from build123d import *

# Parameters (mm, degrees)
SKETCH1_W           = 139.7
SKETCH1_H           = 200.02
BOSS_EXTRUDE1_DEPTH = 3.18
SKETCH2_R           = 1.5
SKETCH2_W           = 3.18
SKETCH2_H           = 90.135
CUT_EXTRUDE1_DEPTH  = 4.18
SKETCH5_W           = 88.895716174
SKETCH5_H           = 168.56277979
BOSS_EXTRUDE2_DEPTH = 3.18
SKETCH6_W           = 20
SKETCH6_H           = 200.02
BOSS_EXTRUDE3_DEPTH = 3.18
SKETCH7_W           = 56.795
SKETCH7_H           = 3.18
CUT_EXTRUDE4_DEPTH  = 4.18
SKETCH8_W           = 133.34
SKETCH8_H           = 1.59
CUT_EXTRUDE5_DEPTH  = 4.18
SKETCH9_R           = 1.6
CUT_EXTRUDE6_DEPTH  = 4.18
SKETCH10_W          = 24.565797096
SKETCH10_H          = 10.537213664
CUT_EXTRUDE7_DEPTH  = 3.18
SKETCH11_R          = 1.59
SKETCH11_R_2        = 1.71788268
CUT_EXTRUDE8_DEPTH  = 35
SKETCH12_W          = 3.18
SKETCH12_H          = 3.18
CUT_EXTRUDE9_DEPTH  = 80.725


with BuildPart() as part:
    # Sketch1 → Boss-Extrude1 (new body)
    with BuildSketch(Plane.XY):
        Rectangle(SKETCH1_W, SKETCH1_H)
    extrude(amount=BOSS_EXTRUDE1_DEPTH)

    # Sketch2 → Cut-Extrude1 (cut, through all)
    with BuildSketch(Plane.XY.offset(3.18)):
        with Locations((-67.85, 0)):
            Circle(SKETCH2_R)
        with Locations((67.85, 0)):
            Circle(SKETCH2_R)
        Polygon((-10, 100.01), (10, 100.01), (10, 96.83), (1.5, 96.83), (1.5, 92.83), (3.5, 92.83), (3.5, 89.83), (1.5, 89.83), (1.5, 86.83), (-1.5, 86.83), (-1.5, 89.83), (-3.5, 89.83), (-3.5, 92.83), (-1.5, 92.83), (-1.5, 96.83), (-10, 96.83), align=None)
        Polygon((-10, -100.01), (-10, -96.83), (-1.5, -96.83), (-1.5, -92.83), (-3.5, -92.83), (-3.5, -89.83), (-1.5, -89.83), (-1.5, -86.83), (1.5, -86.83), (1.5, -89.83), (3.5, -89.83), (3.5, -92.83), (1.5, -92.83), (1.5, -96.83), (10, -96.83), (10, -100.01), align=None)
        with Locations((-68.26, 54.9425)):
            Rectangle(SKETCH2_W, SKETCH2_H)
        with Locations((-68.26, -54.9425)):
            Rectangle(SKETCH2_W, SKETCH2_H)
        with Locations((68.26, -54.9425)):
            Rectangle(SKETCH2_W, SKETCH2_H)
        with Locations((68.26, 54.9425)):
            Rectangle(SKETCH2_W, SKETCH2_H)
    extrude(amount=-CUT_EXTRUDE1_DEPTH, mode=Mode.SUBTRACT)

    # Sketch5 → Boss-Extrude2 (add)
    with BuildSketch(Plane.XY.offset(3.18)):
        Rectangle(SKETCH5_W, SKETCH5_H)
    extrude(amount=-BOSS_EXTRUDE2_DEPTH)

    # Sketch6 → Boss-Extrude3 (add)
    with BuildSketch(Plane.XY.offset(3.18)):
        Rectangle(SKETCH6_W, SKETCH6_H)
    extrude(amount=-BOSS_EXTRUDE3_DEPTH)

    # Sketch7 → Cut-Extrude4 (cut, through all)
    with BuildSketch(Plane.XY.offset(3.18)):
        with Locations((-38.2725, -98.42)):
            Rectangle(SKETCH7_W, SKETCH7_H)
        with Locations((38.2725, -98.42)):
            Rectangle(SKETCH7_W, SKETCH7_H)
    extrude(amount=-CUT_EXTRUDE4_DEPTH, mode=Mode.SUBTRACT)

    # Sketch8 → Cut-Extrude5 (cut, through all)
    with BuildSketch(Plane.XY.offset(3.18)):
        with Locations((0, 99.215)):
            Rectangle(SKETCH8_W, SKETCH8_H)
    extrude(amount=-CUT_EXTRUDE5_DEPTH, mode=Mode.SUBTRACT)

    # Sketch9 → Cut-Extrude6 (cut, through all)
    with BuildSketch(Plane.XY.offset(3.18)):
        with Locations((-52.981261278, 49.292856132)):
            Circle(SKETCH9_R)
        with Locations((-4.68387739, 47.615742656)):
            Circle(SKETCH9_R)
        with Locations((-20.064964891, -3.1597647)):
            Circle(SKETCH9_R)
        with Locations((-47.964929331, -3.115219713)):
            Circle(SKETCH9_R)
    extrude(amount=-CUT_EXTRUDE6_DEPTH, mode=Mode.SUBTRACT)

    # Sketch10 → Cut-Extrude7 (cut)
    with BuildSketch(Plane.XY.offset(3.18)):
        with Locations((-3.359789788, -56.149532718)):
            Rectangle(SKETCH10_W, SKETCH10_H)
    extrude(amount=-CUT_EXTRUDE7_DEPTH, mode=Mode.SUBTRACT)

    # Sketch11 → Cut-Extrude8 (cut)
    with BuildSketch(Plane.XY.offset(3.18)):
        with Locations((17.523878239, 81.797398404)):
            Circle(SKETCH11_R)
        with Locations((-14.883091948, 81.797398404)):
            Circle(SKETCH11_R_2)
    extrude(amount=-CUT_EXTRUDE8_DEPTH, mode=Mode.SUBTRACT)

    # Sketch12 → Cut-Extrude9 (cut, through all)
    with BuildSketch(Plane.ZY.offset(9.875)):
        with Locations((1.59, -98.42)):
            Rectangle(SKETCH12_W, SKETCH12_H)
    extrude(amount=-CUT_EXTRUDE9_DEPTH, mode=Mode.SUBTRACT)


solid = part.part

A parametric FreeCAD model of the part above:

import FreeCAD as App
import Part
import Sketcher

doc = App.newDocument("Part")
body = doc.addObject("PartDesign::Body", "Body")

# Sketch on XY plane
sketch1 = body.newObject("Sketcher::SketchObject", "Sketch")
sketch1.AttachmentSupport = (doc.getObject("XY_Plane"), [""])
sketch1.MapMode = "FlatFace"
sketch1.addGeometry(Part.LineSegment(App.Vector(-70, 100, 0), App.Vector(-70, -100, 0)), False)
sketch1.addGeometry(Part.LineSegment(App.Vector(-70, -100, 0), App.Vector(70, -100, 0)), False)
sketch1.addGeometry(Part.LineSegment(App.Vector(70, -100, 0), App.Vector(70, 100, 0)), False)
sketch1.addGeometry(Part.LineSegment(App.Vector(70, 100, 0), App.Vector(-70, 100, 0)), False)
sketch1.addConstraint(Sketcher.Constraint("Coincident", 0, 2, 1, 1))
sketch1.addConstraint(Sketcher.Constraint("Coincident", 1, 2, 2, 1))
sketch1.addConstraint(Sketcher.Constraint("Coincident", 2, 2, 3, 1))
sketch1.addConstraint(Sketcher.Constraint("Coincident", 3, 2, 0, 1))
sketch1.addConstraint(Sketcher.Constraint("Vertical", 0))
sketch1.addConstraint(Sketcher.Constraint("Horizontal", 1))
sketch1.addConstraint(Sketcher.Constraint("Vertical", 2))
sketch1.addConstraint(Sketcher.Constraint("Horizontal", 3))
sketch1.addConstraint(Sketcher.Constraint("Symmetric", 0, 2, 2, 2, -1, 1))
sketch1.addConstraint(Sketcher.Constraint("DistanceX", 1, 1, 1, 2, 139.7))
sketch1.addConstraint(Sketcher.Constraint("DistanceY", 0, 2, 0, 1, 200.02))
pad1 = body.newObject("PartDesign::Pad", "Pad")
pad1.Profile = sketch1
pad1.Length = 3.18

# Sketch on XY plane
sketch2 = body.newObject("Sketcher::SketchObject", "Sketch001")
sketch2.AttachmentSupport = (doc.getObject("XY_Plane"), [""])
sketch2.MapMode = "FlatFace"
sketch2.AttachmentOffset = App.Placement(App.Vector(0, 0, 3.18), App.Rotation())
sketch2.addGeometry(Part.Circle(App.Vector(-67.8, 0, 0), App.Vector(0, 0, 1), 1.5), False)
sketch2.addGeometry(Part.Circle(App.Vector(67.8, 0, 0), App.Vector(0, 0, 1), 1.5), False)
sketch2.addGeometry(Part.LineSegment(App.Vector(10, 100, 0), App.Vector(-10, 100, 0)), False)
sketch2.addGeometry(Part.LineSegment(App.Vector(-10, 100, 0), App.Vector(-10, 96.8, 0)), False)
sketch2.addGeometry(Part.LineSegment(App.Vector(-10, 96.8, 0), App.Vector(-1.5, 96.8, 0)), False)
sketch2.addGeometry(Part.LineSegment(App.Vector(-1.5, 96.8, 0), App.Vector(-1.5, 92.8, 0)), False)
sketch2.addGeometry(Part.LineSegment(App.Vector(-1.5, 92.8, 0), App.Vector(-3.5, 92.8, 0)), False)
sketch2.addGeometry(Part.LineSegment(App.Vector(-3.5, 92.8, 0), App.Vector(-3.5, 89.8, 0)), False)
sketch2.addGeometry(Part.LineSegment(App.Vector(-3.5, 89.8, 0), App.Vector(-1.5, 89.8, 0)), False)
sketch2.addGeometry(Part.LineSegment(App.Vector(-1.5, 89.8, 0), App.Vector(-1.5, 86.8, 0)), False)
sketch2.addGeometry(Part.LineSegment(App.Vector(-1.5, 86.8, 0), App.Vector(1.5, 86.8, 0)), False)
sketch2.addGeometry(Part.LineSegment(App.Vector(1.5, 86.8, 0), App.Vector(1.5, 89.8, 0)), False)
sketch2.addGeometry(Part.LineSegment(App.Vector(1.5, 89.8, 0), App.Vector(3.5, 89.8, 0)), False)
sketch2.addGeometry(Part.LineSegment(App.Vector(3.5, 89.8, 0), App.Vector(3.5, 92.8, 0)), False)
sketch2.addGeometry(Part.LineSegment(App.Vector(3.5, 92.8, 0), App.Vector(1.5, 92.8, 0)), False)
sketch2.addGeometry(Part.LineSegment(App.Vector(1.5, 92.8, 0), App.Vector(1.5, 96.8, 0)), False)
sketch2.addGeometry(Part.LineSegment(App.Vector(1.5, 96.8, 0), App.Vector(10, 96.8, 0)), False)
sketch2.addGeometry(Part.LineSegment(App.Vector(10, 96.8, 0), App.Vector(10, 100, 0)), False)
sketch2.addGeometry(Part.LineSegment(App.Vector(-10, -96.8, 0), App.Vector(-10, -100, 0)), False)
sketch2.addGeometry(Part.LineSegment(App.Vector(-10, -100, 0), App.Vector(10, -100, 0)), False)
sketch2.addGeometry(Part.LineSegment(App.Vector(10, -100, 0), App.Vector(10, -96.8, 0)), False)
sketch2.addGeometry(Part.LineSegment(App.Vector(10, -96.8, 0), App.Vector(1.5, -96.8, 0)), False)
sketch2.addGeometry(Part.LineSegment(App.Vector(1.5, -96.8, 0), App.Vector(1.5, -92.8, 0)), False)
sketch2.addGeometry(Part.LineSegment(App.Vector(1.5, -92.8, 0), App.Vector(3.5, -92.8, 0)), False)
sketch2.addGeometry(Part.LineSegment(App.Vector(3.5, -92.8, 0), App.Vector(3.5, -89.8, 0)), False)
sketch2.addGeometry(Part.LineSegment(App.Vector(3.5, -89.8, 0), App.Vector(1.5, -89.8, 0)), False)
sketch2.addGeometry(Part.LineSegment(App.Vector(1.5, -89.8, 0), App.Vector(1.5, -86.8, 0)), False)
sketch2.addGeometry(Part.LineSegment(App.Vector(1.5, -86.8, 0), App.Vector(-1.5, -86.8, 0)), False)
sketch2.addGeometry(Part.LineSegment(App.Vector(-1.5, -86.8, 0), App.Vector(-1.5, -89.8, 0)), False)
sketch2.addGeometry(Part.LineSegment(App.Vector(-1.5, -89.8, 0), App.Vector(-3.5, -89.8, 0)), False)
sketch2.addGeometry(Part.LineSegment(App.Vector(-3.5, -89.8, 0), App.Vector(-3.5, -92.8, 0)), False)
sketch2.addGeometry(Part.LineSegment(App.Vector(-3.5, -92.8, 0), App.Vector(-1.5, -92.8, 0)), False)
sketch2.addGeometry(Part.LineSegment(App.Vector(-1.5, -92.8, 0), App.Vector(-1.5, -96.8, 0)), False)
sketch2.addGeometry(Part.LineSegment(App.Vector(-1.5, -96.8, 0), App.Vector(-10, -96.8, 0)), False)
sketch2.addGeometry(Part.LineSegment(App.Vector(-69.8, 100, 0), App.Vector(-69.8, 9.9, 0)), False)
sketch2.addGeometry(Part.LineSegment(App.Vector(-69.8, 9.9, 0), App.Vector(-66.7, 9.9, 0)), False)
sketch2.addGeometry(Part.LineSegment(App.Vector(-66.7, 9.9, 0), App.Vector(-66.7, 100, 0)), False)
sketch2.addGeometry(Part.LineSegment(App.Vector(-66.7, 100, 0), App.Vector(-69.8, 100, 0)), False)
sketch2.addGeometry(Part.LineSegment(App.Vector(-69.8, -9.9, 0), App.Vector(-69.8, -100, 0)), False)
sketch2.addGeometry(Part.LineSegment(App.Vector(-69.8, -100, 0), App.Vector(-66.7, -100, 0)), False)
sketch2.addGeometry(Part.LineSegment(App.Vector(-66.7, -100, 0), App.Vector(-66.7, -9.9, 0)), False)
sketch2.addGeometry(Part.LineSegment(App.Vector(-66.7, -9.9, 0), App.Vector(-69.8, -9.9, 0)), False)
sketch2.addGeometry(Part.LineSegment(App.Vector(66.7, -9.9, 0), App.Vector(66.7, -100, 0)), False)
sketch2.addGeometry(Part.LineSegment(App.Vector(66.7, -100, 0), App.Vector(69.8, -100, 0)), False)
sketch2.addGeometry(Part.LineSegment(App.Vector(69.8, -100, 0), App.Vector(69.8, -9.9, 0)), False)
sketch2.addGeometry(Part.LineSegment(App.Vector(69.8, -9.9, 0), App.Vector(66.7, -9.9, 0)), False)
sketch2.addGeometry(Part.LineSegment(App.Vector(66.7, 100, 0), App.Vector(66.7, 9.9, 0)), False)
sketch2.addGeometry(Part.LineSegment(App.Vector(66.7, 9.9, 0), App.Vector(69.8, 9.9, 0)), False)
sketch2.addGeometry(Part.LineSegment(App.Vector(69.8, 9.9, 0), App.Vector(69.8, 100, 0)), False)
sketch2.addGeometry(Part.LineSegment(App.Vector(69.8, 100, 0), App.Vector(66.7, 100, 0)), False)
sketch2.addConstraint(Sketcher.Constraint("Coincident", 2, 2, 3, 1))
sketch2.addConstraint(Sketcher.Constraint("Coincident", 3, 2, 4, 1))
sketch2.addConstraint(Sketcher.Constraint("Coincident", 4, 2, 5, 1))
sketch2.addConstraint(Sketcher.Constraint("Coincident", 5, 2, 6, 1))
sketch2.addConstraint(Sketcher.Constraint("Coincident", 6, 2, 7, 1))
sketch2.addConstraint(Sketcher.Constraint("Coincident", 7, 2, 8, 1))
sketch2.addConstraint(Sketcher.Constraint("Coincident", 8, 2, 9, 1))
sketch2.addConstraint(Sketcher.Constraint("Coincident", 9, 2, 10, 1))
sketch2.addConstraint(Sketcher.Constraint("Coincident", 10, 2, 11, 1))
sketch2.addConstraint(Sketcher.Constraint("Coincident", 11, 2, 12, 1))
sketch2.addConstraint(Sketcher.Constraint("Coincident", 12, 2, 13, 1))
sketch2.addConstraint(Sketcher.Constraint("Coincident", 13, 2, 14, 1))
sketch2.addConstraint(Sketcher.Constraint("Coincident", 14, 2, 15, 1))
sketch2.addConstraint(Sketcher.Constraint("Coincident", 15, 2, 16, 1))
sketch2.addConstraint(Sketcher.Constraint("Coincident", 16, 2, 17, 1))
sketch2.addConstraint(Sketcher.Constraint("Coincident", 17, 2, 2, 1))
sketch2.addConstraint(Sketcher.Constraint("Coincident", 18, 2, 19, 1))
sketch2.addConstraint(Sketcher.Constraint("Coincident", 19, 2, 20, 1))
sketch2.addConstraint(Sketcher.Constraint("Coincident", 20, 2, 21, 1))
sketch2.addConstraint(Sketcher.Constraint("Coincident", 21, 2, 22, 1))
sketch2.addConstraint(Sketcher.Constraint("Coincident", 22, 2, 23, 1))
sketch2.addConstraint(Sketcher.Constraint("Coincident", 23, 2, 24, 1))
sketch2.addConstraint(Sketcher.Constraint("Coincident", 24, 2, 25, 1))
sketch2.addConstraint(Sketcher.Constraint("Coincident", 25, 2, 26, 1))
sketch2.addConstraint(Sketcher.Constraint("Coincident", 26, 2, 27, 1))
sketch2.addConstraint(Sketcher.Constraint("Coincident", 27, 2, 28, 1))
sketch2.addConstraint(Sketcher.Constraint("Coincident", 28, 2, 29, 1))
sketch2.addConstraint(Sketcher.Constraint("Coincident", 29, 2, 30, 1))
sketch2.addConstraint(Sketcher.Constraint("Coincident", 30, 2, 31, 1))
sketch2.addConstraint(Sketcher.Constraint("Coincident", 31, 2, 32, 1))
sketch2.addConstraint(Sketcher.Constraint("Coincident", 32, 2, 33, 1))
sketch2.addConstraint(Sketcher.Constraint("Coincident", 33, 2, 18, 1))
sketch2.addConstraint(Sketcher.Constraint("Coincident", 34, 2, 35, 1))
sketch2.addConstraint(Sketcher.Constraint("Coincident", 35, 2, 36, 1))
sketch2.addConstraint(Sketcher.Constraint("Coincident", 36, 2, 37, 1))
sketch2.addConstraint(Sketcher.Constraint("Coincident", 37, 2, 34, 1))
sketch2.addConstraint(Sketcher.Constraint("Coincident", 38, 2, 39, 1))
sketch2.addConstraint(Sketcher.Constraint("Coincident", 39, 2, 40, 1))
sketch2.addConstraint(Sketcher.Constraint("Coincident", 40, 2, 41, 1))
sketch2.addConstraint(Sketcher.Constraint("Coincident", 41, 2, 38, 1))
sketch2.addConstraint(Sketcher.Constraint("Coincident", 42, 2, 43, 1))
sketch2.addConstraint(Sketcher.Constraint("Coincident", 43, 2, 44, 1))
sketch2.addConstraint(Sketcher.Constraint("Coincident", 44, 2, 45, 1))
sketch2.addConstraint(Sketcher.Constraint("Coincident", 45, 2, 42, 1))
sketch2.addConstraint(Sketcher.Constraint("Coincident", 46, 2, 47, 1))
sketch2.addConstraint(Sketcher.Constraint("Coincident", 47, 2, 48, 1))
sketch2.addConstraint(Sketcher.Constraint("Coincident", 48, 2, 49, 1))
sketch2.addConstraint(Sketcher.Constraint("Coincident", 49, 2, 46, 1))
sketch2.addConstraint(Sketcher.Constraint("Horizontal", 2))
sketch2.addConstraint(Sketcher.Constraint("Vertical", 3))
sketch2.addConstraint(Sketcher.Constraint("Horizontal", 4))
sketch2.addConstraint(Sketcher.Constraint("Vertical", 5))
sketch2.addConstraint(Sketcher.Constraint("Horizontal", 6))
sketch2.addConstraint(Sketcher.Constraint("Vertical", 7))
sketch2.addConstraint(Sketcher.Constraint("Horizontal", 8))
sketch2.addConstraint(Sketcher.Constraint("Vertical", 9))
sketch2.addConstraint(Sketcher.Constraint("Horizontal", 10))
sketch2.addConstraint(Sketcher.Constraint("Vertical", 11))
sketch2.addConstraint(Sketcher.Constraint("Horizontal", 12))
sketch2.addConstraint(Sketcher.Constraint("Vertical", 13))
sketch2.addConstraint(Sketcher.Constraint("Horizontal", 14))
sketch2.addConstraint(Sketcher.Constraint("Vertical", 15))
sketch2.addConstraint(Sketcher.Constraint("Horizontal", 16))
sketch2.addConstraint(Sketcher.Constraint("Vertical", 17))
sketch2.addConstraint(Sketcher.Constraint("Vertical", 18))
sketch2.addConstraint(Sketcher.Constraint("Horizontal", 19))
sketch2.addConstraint(Sketcher.Constraint("Vertical", 20))
sketch2.addConstraint(Sketcher.Constraint("Horizontal", 21))
sketch2.addConstraint(Sketcher.Constraint("Vertical", 22))
sketch2.addConstraint(Sketcher.Constraint("Horizontal", 23))
sketch2.addConstraint(Sketcher.Constraint("Vertical", 24))
sketch2.addConstraint(Sketcher.Constraint("Horizontal", 25))
sketch2.addConstraint(Sketcher.Constraint("Vertical", 26))
sketch2.addConstraint(Sketcher.Constraint("Horizontal", 27))
sketch2.addConstraint(Sketcher.Constraint("Vertical", 28))
sketch2.addConstraint(Sketcher.Constraint("Horizontal", 29))
sketch2.addConstraint(Sketcher.Constraint("Vertical", 30))
sketch2.addConstraint(Sketcher.Constraint("Horizontal", 31))
sketch2.addConstraint(Sketcher.Constraint("Vertical", 32))
sketch2.addConstraint(Sketcher.Constraint("Horizontal", 33))
sketch2.addConstraint(Sketcher.Constraint("Vertical", 34))
sketch2.addConstraint(Sketcher.Constraint("Horizontal", 35))
sketch2.addConstraint(Sketcher.Constraint("Vertical", 36))
sketch2.addConstraint(Sketcher.Constraint("Horizontal", 37))
sketch2.addConstraint(Sketcher.Constraint("Vertical", 38))
sketch2.addConstraint(Sketcher.Constraint("Horizontal", 39))
sketch2.addConstraint(Sketcher.Constraint("Vertical", 40))
sketch2.addConstraint(Sketcher.Constraint("Horizontal", 41))
sketch2.addConstraint(Sketcher.Constraint("Vertical", 42))
sketch2.addConstraint(Sketcher.Constraint("Horizontal", 43))
sketch2.addConstraint(Sketcher.Constraint("Vertical", 44))
sketch2.addConstraint(Sketcher.Constraint("Horizontal", 45))
sketch2.addConstraint(Sketcher.Constraint("Vertical", 46))
sketch2.addConstraint(Sketcher.Constraint("Horizontal", 47))
sketch2.addConstraint(Sketcher.Constraint("Vertical", 48))
sketch2.addConstraint(Sketcher.Constraint("Horizontal", 49))
sketch2.addConstraint(Sketcher.Constraint("Equal", 0, 1))
sketch2.addConstraint(Sketcher.Constraint("Symmetric", 0, 3, 1, 3, -1, 1))
sketch2.addConstraint(Sketcher.Constraint("Symmetric", 17, 2, 18, 2, -1, 1))
sketch2.addConstraint(Sketcher.Constraint("Symmetric", 3, 2, 20, 2, -1, 1))
sketch2.addConstraint(Sketcher.Constraint("Symmetric", 5, 2, 22, 2, -1, 1))
sketch2.addConstraint(Sketcher.Constraint("Symmetric", 7, 2, 24, 2, -1, 1))
sketch2.addConstraint(Sketcher.Constraint("Symmetric", 9, 2, 26, 2, -1, 1))
sketch2.addConstraint(Sketcher.Constraint("Symmetric", 11, 2, 28, 2, -1, 1))
sketch2.addConstraint(Sketcher.Constraint("Symmetric", 13, 2, 30, 2, -1, 1))
sketch2.addConstraint(Sketcher.Constraint("Symmetric", 15, 2, 32, 2, -1, 1))
sketch2.addConstraint(Sketcher.Constraint("Symmetric", 36, 2, 42, 2, -1, 1))
sketch2.addConstraint(Sketcher.Constraint("Symmetric", 34, 2, 44, 2, -1, 1))
sketch2.addConstraint(Sketcher.Constraint("Symmetric", 40, 2, 46, 2, -1, 1))
sketch2.addConstraint(Sketcher.Constraint("Symmetric", 38, 2, 48, 2, -1, 1))
sketch2.addConstraint(Sketcher.Constraint("Symmetric", 8, 2, 11, 2, -2))
sketch2.addConstraint(Sketcher.Constraint("Symmetric", 6, 2, 13, 2, -2))
sketch2.addConstraint(Sketcher.Constraint("Symmetric", 4, 2, 15, 2, -2))
sketch2.addConstraint(Sketcher.Constraint("Symmetric", 39, 2, 42, 2, -2))
sketch2.addConstraint(Sketcher.Constraint("Symmetric", 41, 2, 44, 2, -2))
sketch2.addConstraint(Sketcher.Constraint("PointOnObject", 0, 3, -1))
sketch2.addConstraint(Sketcher.Constraint("Horizontal", 17, 2, 36, 2))
sketch2.addConstraint(Sketcher.Constraint("Vertical", 5, 2, 8, 2))
sketch2.addConstraint(Sketcher.Constraint("Vertical", 3, 2, 18, 2))
sketch2.addConstraint(Sketcher.Constraint("Equal", 49, 3))
sketch2.addConstraint(Sketcher.Constraint("Equal", 27, 7))
sketch2.addConstraint(Sketcher.Constraint("Equal", 7, 9))
sketch2.addConstraint(Sketcher.Constraint("Diameter", 0, 3.0))
sketch2.addConstraint(Sketcher.Constraint("DistanceX", 2, 2, 2, 1, 20.0))
sketch2.addConstraint(Sketcher.Constraint("DistanceX", 6, 2, 6, 1, 2.0))
sketch2.addConstraint(Sketcher.Constraint("DistanceX", 10, 1, 10, 2, 3.0))
sketch2.addConstraint(Sketcher.Constraint("DistanceY", 5, 2, 5, 1, 4.0))
sketch2.addConstraint(Sketcher.Constraint("DistanceX", 34, 2, 0, 3, 2.0))
sketch2.addConstraint(Sketcher.Constraint("DistanceX", 35, 1, 35, 2, 3.18))
sketch2.addConstraint(Sketcher.Constraint("DistanceX", 0, 3, 1, 3, 135.7))
sketch2.addConstraint(Sketcher.Constraint("DistanceY", 34, 2, 34, 1, 90.135))
sketch2.addConstraint(Sketcher.Constraint("DistanceY", -1, 1, 2, 2, 100.01))
pocket1 = body.newObject("PartDesign::Pocket", "Pocket")
pocket1.Profile = sketch2
pocket1.Type = "ThroughAll"

# Sketch on XY plane
sketch3 = body.newObject("Sketcher::SketchObject", "Sketch002")
sketch3.AttachmentSupport = (doc.getObject("XY_Plane"), [""])
sketch3.MapMode = "FlatFace"
sketch3.AttachmentOffset = App.Placement(App.Vector(0, 0, 3.18), App.Rotation())
sketch3.addGeometry(Part.LineSegment(App.Vector(-44, 84, 0), App.Vector(-44, -84, 0)), False)
sketch3.addGeometry(Part.LineSegment(App.Vector(-44, -84, 0), App.Vector(44, -84, 0)), False)
sketch3.addGeometry(Part.LineSegment(App.Vector(44, -84, 0), App.Vector(44, 84, 0)), False)
sketch3.addGeometry(Part.LineSegment(App.Vector(44, 84, 0), App.Vector(-44, 84, 0)), False)
sketch3.addConstraint(Sketcher.Constraint("Coincident", 0, 2, 1, 1))
sketch3.addConstraint(Sketcher.Constraint("Coincident", 1, 2, 2, 1))
sketch3.addConstraint(Sketcher.Constraint("Coincident", 2, 2, 3, 1))
sketch3.addConstraint(Sketcher.Constraint("Coincident", 3, 2, 0, 1))
sketch3.addConstraint(Sketcher.Constraint("Vertical", 0))
sketch3.addConstraint(Sketcher.Constraint("Horizontal", 1))
sketch3.addConstraint(Sketcher.Constraint("Vertical", 2))
sketch3.addConstraint(Sketcher.Constraint("Horizontal", 3))
sketch3.addConstraint(Sketcher.Constraint("Symmetric", 0, 2, 2, 2, -1, 1))
sketch3.addConstraint(Sketcher.Constraint("DistanceY", 0, 2, 0, 1, 168.56278))
sketch3.addConstraint(Sketcher.Constraint("DistanceX", 1, 1, 1, 2, 88.895716))
pad2 = body.newObject("PartDesign::Pad", "Pad001")
pad2.Profile = sketch3
pad2.Length = 3.18
pad2.Reversed = True

# Sketch on XY plane
sketch4 = body.newObject("Sketcher::SketchObject", "Sketch003")
sketch4.AttachmentSupport = (doc.getObject("XY_Plane"), [""])
sketch4.MapMode = "FlatFace"
sketch4.AttachmentOffset = App.Placement(App.Vector(0, 0, 3.18), App.Rotation())
sketch4.addGeometry(Part.LineSegment(App.Vector(-10, 100, 0), App.Vector(-10, -100, 0)), False)
sketch4.addGeometry(Part.LineSegment(App.Vector(-10, -100, 0), App.Vector(10, -100, 0)), False)
sketch4.addGeometry(Part.LineSegment(App.Vector(10, -100, 0), App.Vector(10, 100, 0)), False)
sketch4.addGeometry(Part.LineSegment(App.Vector(10, 100, 0), App.Vector(-10, 100, 0)), False)
sketch4.addConstraint(Sketcher.Constraint("Coincident", 0, 2, 1, 1))
sketch4.addConstraint(Sketcher.Constraint("Coincident", 1, 2, 2, 1))
sketch4.addConstraint(Sketcher.Constraint("Coincident", 2, 2, 3, 1))
sketch4.addConstraint(Sketcher.Constraint("Coincident", 3, 2, 0, 1))
sketch4.addConstraint(Sketcher.Constraint("Vertical", 0))
sketch4.addConstraint(Sketcher.Constraint("Horizontal", 1))
sketch4.addConstraint(Sketcher.Constraint("Vertical", 2))
sketch4.addConstraint(Sketcher.Constraint("Horizontal", 3))
sketch4.addConstraint(Sketcher.Constraint("Symmetric", 0, 2, 2, 2, -1, 1))
sketch4.addConstraint(Sketcher.Constraint("DistanceX", 1, 1, 1, 2, 20.0))
sketch4.addConstraint(Sketcher.Constraint("DistanceY", 0, 2, 0, 1, 200.02))
pad3 = body.newObject("PartDesign::Pad", "Pad002")
pad3.Profile = sketch4
pad3.Length = 3.18
pad3.Reversed = True

# Sketch on XY plane
sketch5 = body.newObject("Sketcher::SketchObject", "Sketch004")
sketch5.AttachmentSupport = (doc.getObject("XY_Plane"), [""])
sketch5.MapMode = "FlatFace"
sketch5.AttachmentOffset = App.Placement(App.Vector(0, 0, 3.18), App.Rotation())
sketch5.addGeometry(Part.LineSegment(App.Vector(-66.7, -96.8, 0), App.Vector(-66.7, -100, 0)), False)
sketch5.addGeometry(Part.LineSegment(App.Vector(-66.7, -100, 0), App.Vector(-9.9, -100, 0)), False)
sketch5.addGeometry(Part.LineSegment(App.Vector(-9.9, -100, 0), App.Vector(-9.9, -96.8, 0)), False)
sketch5.addGeometry(Part.LineSegment(App.Vector(-9.9, -96.8, 0), App.Vector(-66.7, -96.8, 0)), False)
sketch5.addGeometry(Part.LineSegment(App.Vector(9.9, -96.8, 0), App.Vector(9.9, -100, 0)), False)
sketch5.addGeometry(Part.LineSegment(App.Vector(9.9, -100, 0), App.Vector(66.7, -100, 0)), False)
sketch5.addGeometry(Part.LineSegment(App.Vector(66.7, -100, 0), App.Vector(66.7, -96.8, 0)), False)
sketch5.addGeometry(Part.LineSegment(App.Vector(66.7, -96.8, 0), App.Vector(9.9, -96.8, 0)), False)
sketch5.addConstraint(Sketcher.Constraint("Coincident", 0, 2, 1, 1))
sketch5.addConstraint(Sketcher.Constraint("Coincident", 1, 2, 2, 1))
sketch5.addConstraint(Sketcher.Constraint("Coincident", 2, 2, 3, 1))
sketch5.addConstraint(Sketcher.Constraint("Coincident", 3, 2, 0, 1))
sketch5.addConstraint(Sketcher.Constraint("Coincident", 4, 2, 5, 1))
sketch5.addConstraint(Sketcher.Constraint("Coincident", 5, 2, 6, 1))
sketch5.addConstraint(Sketcher.Constraint("Coincident", 6, 2, 7, 1))
sketch5.addConstraint(Sketcher.Constraint("Coincident", 7, 2, 4, 1))
sketch5.addConstraint(Sketcher.Constraint("Vertical", 0))
sketch5.addConstraint(Sketcher.Constraint("Horizontal", 1))
sketch5.addConstraint(Sketcher.Constraint("Vertical", 2))
sketch5.addConstraint(Sketcher.Constraint("Horizontal", 3))
sketch5.addConstraint(Sketcher.Constraint("Vertical", 4))
sketch5.addConstraint(Sketcher.Constraint("Horizontal", 5))
sketch5.addConstraint(Sketcher.Constraint("Vertical", 6))
sketch5.addConstraint(Sketcher.Constraint("Horizontal", 7))
sketch5.addConstraint(Sketcher.Constraint("Symmetric", 1, 2, 4, 2, -2))
sketch5.addConstraint(Sketcher.Constraint("Symmetric", 3, 2, 6, 2, -2))
sketch5.addConstraint(Sketcher.Constraint("DistanceY", 0, 2, 0, 1, 3.18))
sketch5.addConstraint(Sketcher.Constraint("DistanceX", 1, 1, 1, 2, 56.795))
sketch5.addConstraint(Sketcher.Constraint("DistanceX", 0, 2, -1, 1, 66.67))
sketch5.addConstraint(Sketcher.Constraint("DistanceY", 0, 2, -1, 1, 100.01))
pocket2 = body.newObject("PartDesign::Pocket", "Pocket001")
pocket2.Profile = sketch5
pocket2.Type = "ThroughAll"

# Sketch on XY plane
sketch6 = body.newObject("Sketcher::SketchObject", "Sketch005")
sketch6.AttachmentSupport = (doc.getObject("XY_Plane"), [""])
sketch6.MapMode = "FlatFace"
sketch6.AttachmentOffset = App.Placement(App.Vector(0, 0, 3.18), App.Rotation())
sketch6.addGeometry(Part.LineSegment(App.Vector(-66.7, 100, 0), App.Vector(-66.7, 98.4, 0)), False)
sketch6.addGeometry(Part.LineSegment(App.Vector(-66.7, 98.4, 0), App.Vector(66.7, 98.4, 0)), False)
sketch6.addGeometry(Part.LineSegment(App.Vector(66.7, 98.4, 0), App.Vector(66.7, 100, 0)), False)
sketch6.addGeometry(Part.LineSegment(App.Vector(66.7, 100, 0), App.Vector(-66.7, 100, 0)), False)
sketch6.addConstraint(Sketcher.Constraint("Coincident", 0, 2, 1, 1))
sketch6.addConstraint(Sketcher.Constraint("Coincident", 1, 2, 2, 1))
sketch6.addConstraint(Sketcher.Constraint("Coincident", 2, 2, 3, 1))
sketch6.addConstraint(Sketcher.Constraint("Coincident", 3, 2, 0, 1))
sketch6.addConstraint(Sketcher.Constraint("Vertical", 0))
sketch6.addConstraint(Sketcher.Constraint("Horizontal", 1))
sketch6.addConstraint(Sketcher.Constraint("Vertical", 2))
sketch6.addConstraint(Sketcher.Constraint("Horizontal", 3))
sketch6.addConstraint(Sketcher.Constraint("DistanceX", 1, 1, 1, 2, 133.34))
sketch6.addConstraint(Sketcher.Constraint("DistanceY", 0, 2, 0, 1, 1.59))
sketch6.addConstraint(Sketcher.Constraint("DistanceX", 0, 2, -1, 1, 66.67))
sketch6.addConstraint(Sketcher.Constraint("DistanceY", -1, 1, 0, 2, 98.42))
pocket3 = body.newObject("PartDesign::Pocket", "Pocket002")
pocket3.Profile = sketch6
pocket3.Type = "ThroughAll"

# Sketch on XY plane
sketch7 = body.newObject("Sketcher::SketchObject", "Sketch006")
sketch7.AttachmentSupport = (doc.getObject("XY_Plane"), [""])
sketch7.MapMode = "FlatFace"
sketch7.AttachmentOffset = App.Placement(App.Vector(0, 0, 3.18), App.Rotation())
sketch7.addGeometry(Part.Circle(App.Vector(-53, 49.3, 0), App.Vector(0, 0, 1), 1.6), False)
sketch7.addGeometry(Part.Circle(App.Vector(-4.7, 47.6, 0), App.Vector(0, 0, 1), 1.6), False)
sketch7.addGeometry(Part.Circle(App.Vector(-20.1, -3.2, 0), App.Vector(0, 0, 1), 1.6), False)
sketch7.addGeometry(Part.Circle(App.Vector(-48, -3.1, 0), App.Vector(0, 0, 1), 1.6), False)
sketch7.addConstraint(Sketcher.Constraint("Equal", 0, 1))
sketch7.addConstraint(Sketcher.Constraint("Equal", 1, 2))
sketch7.addConstraint(Sketcher.Constraint("Equal", 2, 3))
sketch7.addConstraint(Sketcher.Constraint("Diameter", 0, 3.2))
sketch7.addConstraint(Sketcher.Constraint("DistanceX", 0, 3, -1, 1, 52.981261))
sketch7.addConstraint(Sketcher.Constraint("DistanceX", 3, 3, -1, 1, 47.964929))
sketch7.addConstraint(Sketcher.Constraint("DistanceY", 3, 3, -1, 1, 3.11522))
sketch7.addConstraint(Sketcher.Constraint("DistanceY", 2, 3, 0, 3, 52.452621))
sketch7.addConstraint(Sketcher.Constraint("DistanceX", 3, 3, 1, 3, 43.281052))
sketch7.addConstraint(Sketcher.Constraint("DistanceY", -1, 1, 0, 3, 49.292856))
sketch7.addConstraint(Sketcher.Constraint("DistanceY", -1, 1, 1, 3, 47.615743))
sketch7.addConstraint(Sketcher.Constraint("DistanceX", 2, 3, -1, 1, 20.064965))
pocket4 = body.newObject("PartDesign::Pocket", "Pocket003")
pocket4.Profile = sketch7
pocket4.Type = "ThroughAll"

# Sketch on XY plane
sketch8 = body.newObject("Sketcher::SketchObject", "Sketch007")
sketch8.AttachmentSupport = (doc.getObject("XY_Plane"), [""])
sketch8.MapMode = "FlatFace"
sketch8.AttachmentOffset = App.Placement(App.Vector(0, 0, 3.18), App.Rotation())
sketch8.addGeometry(Part.LineSegment(App.Vector(-16, -51, 0), App.Vector(-16, -61, 0)), False)
sketch8.addGeometry(Part.LineSegment(App.Vector(-16, -61, 0), App.Vector(9, -61, 0)), False)
sketch8.addGeometry(Part.LineSegment(App.Vector(9, -61, 0), App.Vector(9, -51, 0)), False)
sketch8.addGeometry(Part.LineSegment(App.Vector(9, -51, 0), App.Vector(-16, -51, 0)), False)
sketch8.addConstraint(Sketcher.Constraint("Coincident", 0, 2, 1, 1))
sketch8.addConstraint(Sketcher.Constraint("Coincident", 1, 2, 2, 1))
sketch8.addConstraint(Sketcher.Constraint("Coincident", 2, 2, 3, 1))
sketch8.addConstraint(Sketcher.Constraint("Coincident", 3, 2, 0, 1))
sketch8.addConstraint(Sketcher.Constraint("Vertical", 0))
sketch8.addConstraint(Sketcher.Constraint("Horizontal", 1))
sketch8.addConstraint(Sketcher.Constraint("Vertical", 2))
sketch8.addConstraint(Sketcher.Constraint("Horizontal", 3))
sketch8.addConstraint(Sketcher.Constraint("DistanceX", 1, 1, 1, 2, 24.565797))
sketch8.addConstraint(Sketcher.Constraint("DistanceY", 0, 2, 0, 1, 10.537214))
sketch8.addConstraint(Sketcher.Constraint("DistanceX", 0, 2, -1, 1, 15.642688))
sketch8.addConstraint(Sketcher.Constraint("DistanceY", 0, 2, -1, 1, 61.41814))
pocket5 = body.newObject("PartDesign::Pocket", "Pocket004")
pocket5.Profile = sketch8
pocket5.Length = 3.18

# Sketch on XY plane
sketch9 = body.newObject("Sketcher::SketchObject", "Sketch008")
sketch9.AttachmentSupport = (doc.getObject("XY_Plane"), [""])
sketch9.MapMode = "FlatFace"
sketch9.AttachmentOffset = App.Placement(App.Vector(0, 0, 3.18), App.Rotation())
sketch9.addGeometry(Part.Circle(App.Vector(17.5, 81.8, 0), App.Vector(0, 0, 1), 1.6), False)
sketch9.addGeometry(Part.Circle(App.Vector(-14.9, 81.8, 0), App.Vector(0, 0, 1), 1.7), False)
sketch9.addConstraint(Sketcher.Constraint("Horizontal", 0, 3, 1, 3))
sketch9.addConstraint(Sketcher.Constraint("Diameter", 0, 3.18))
sketch9.addConstraint(Sketcher.Constraint("Diameter", 1, 3.435765))
sketch9.addConstraint(Sketcher.Constraint("DistanceY", -1, 1, 0, 3, 81.797398))
sketch9.addConstraint(Sketcher.Constraint("DistanceX", -1, 1, 0, 3, 17.523878))
sketch9.addConstraint(Sketcher.Constraint("DistanceX", 1, 3, -1, 1, 14.883092))
pocket6 = body.newObject("PartDesign::Pocket", "Pocket005")
pocket6.Profile = sketch9
pocket6.Length = 35

# Sketch on YZ plane
sketch10 = body.newObject("Sketcher::SketchObject", "Sketch009")
sketch10.AttachmentSupport = (doc.getObject("YZ_Plane"), [""])
sketch10.MapMode = "FlatFace"
sketch10.AttachmentOffset = App.Placement(App.Vector(0, 0, -9.875), App.Rotation())
sketch10.addGeometry(Part.LineSegment(App.Vector(-96.8, 0, 0), App.Vector(-100, 0, 0)), False)
sketch10.addGeometry(Part.LineSegment(App.Vector(-100, 0, 0), App.Vector(-100, 3.2, 0)), False)
sketch10.addGeometry(Part.LineSegment(App.Vector(-100, 3.2, 0), App.Vector(-96.8, 3.2, 0)), False)
sketch10.addGeometry(Part.LineSegment(App.Vector(-96.8, 3.2, 0), App.Vector(-96.8, 0, 0)), False)
sketch10.addConstraint(Sketcher.Constraint("Coincident", 0, 2, 1, 1))
sketch10.addConstraint(Sketcher.Constraint("Coincident", 1, 2, 2, 1))
sketch10.addConstraint(Sketcher.Constraint("Coincident", 2, 2, 3, 1))
sketch10.addConstraint(Sketcher.Constraint("Coincident", 3, 2, 0, 1))
sketch10.addConstraint(Sketcher.Constraint("Horizontal", 0))
sketch10.addConstraint(Sketcher.Constraint("Vertical", 1))
sketch10.addConstraint(Sketcher.Constraint("Horizontal", 2))
sketch10.addConstraint(Sketcher.Constraint("Vertical", 3))
sketch10.addConstraint(Sketcher.Constraint("PointOnObject", 0, 2, -1))
sketch10.addConstraint(Sketcher.Constraint("Equal", 2, 1))
sketch10.addConstraint(Sketcher.Constraint("DistanceX", 0, 2, 0, 1, 3.18))
sketch10.addConstraint(Sketcher.Constraint("DistanceX", 0, 2, -1, 1, 100.01))
pocket7 = body.newObject("PartDesign::Pocket", "Pocket006")
pocket7.Profile = sketch10
pocket7.Type = "ThroughAll"
pocket7.Reversed = True

doc.recompute()
